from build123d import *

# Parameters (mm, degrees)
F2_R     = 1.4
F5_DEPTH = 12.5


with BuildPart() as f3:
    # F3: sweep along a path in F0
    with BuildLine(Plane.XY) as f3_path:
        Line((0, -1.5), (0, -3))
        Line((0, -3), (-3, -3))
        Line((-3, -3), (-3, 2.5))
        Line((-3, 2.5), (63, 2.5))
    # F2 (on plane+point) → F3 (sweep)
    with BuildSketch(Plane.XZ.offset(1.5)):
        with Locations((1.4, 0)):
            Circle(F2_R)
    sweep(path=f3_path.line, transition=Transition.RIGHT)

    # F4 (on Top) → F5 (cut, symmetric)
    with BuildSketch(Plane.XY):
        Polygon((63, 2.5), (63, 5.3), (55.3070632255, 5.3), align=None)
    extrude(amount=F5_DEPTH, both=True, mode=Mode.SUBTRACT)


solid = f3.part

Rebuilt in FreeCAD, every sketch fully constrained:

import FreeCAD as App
import Part
import Sketcher
Q = App.Units.Quantity


def add_polygon(sketch, points):
    """Adds a closed chain of lines whose ends are joined by coincident constraints."""
    first, n = sketch.GeometryCount, len(points)
    for a, b in zip(points, points[1:] + points[:1]):
        sketch.addGeometry(Part.LineSegment(App.Vector(*a, 0), App.Vector(*b, 0)), False)
    for i in range(n):
        sketch.addConstraint(Sketcher.Constraint("Coincident", first + i, 2, first + (i + 1) % n, 1))

doc = App.newDocument("Part")
body = doc.addObject("PartDesign::Body", "Body")

# Sketch on XZ plane
sketch1 = body.newObject("Sketcher::SketchObject", "Sketch")
sketch1.AttachmentSupport = (doc.getObject("XZ_Plane"), [""])
sketch1.MapMode = "FlatFace"
sketch1.AttachmentOffset = App.Placement(App.Vector(0, 0, 1.5), App.Rotation())
sketch1.addGeometry(Part.Circle(App.Vector(1.4, 0, 0), App.Vector(0, 0, 1), 1.4), False)
sketch1.addConstraint([
    Sketcher.Constraint("PointOnObject", 0, 3, -1),
    Sketcher.Constraint("Diameter", 0, Q("2.8 mm")),
    Sketcher.Constraint("DistanceX", -1, 1, 0, 3, Q("1.4 mm")),
])

# Sketch on XY plane
sketch2 = body.newObject("Sketcher::SketchObject", "Sketch001")
sketch2.AttachmentSupport = (doc.getObject("XY_Plane"), [""])
sketch2.MapMode = "FlatFace"
sketch2.addGeometry([
    Part.LineSegment(App.Vector(0, -1.5, 0), App.Vector(0, -3, 0)),
    Part.LineSegment(App.Vector(0, -3, 0), App.Vector(-3, -3, 0)),
    Part.LineSegment(App.Vector(-3, -3, 0), App.Vector(-3, 2.5, 0)),
    Part.LineSegment(App.Vector(-3, 2.5, 0), App.Vector(63, 2.5, 0)),
], False)
sketch2.addConstraint([
    Sketcher.Constraint("Coincident", 0, 2, 1, 1),
    Sketcher.Constraint("Coincident", 1, 2, 2, 1),
    Sketcher.Constraint("Coincident", 2, 2, 3, 1),
    Sketcher.Constraint("Vertical", 0),
    Sketcher.Constraint("Horizontal", 1),
    Sketcher.Constraint("Vertical", 2),
    Sketcher.Constraint("Horizontal", 3),
    Sketcher.Constraint("PointOnObject", 0, 1, -2),
    Sketcher.Constraint("DistanceX", 1, 2, 1, 1, Q("3 mm")),
    Sketcher.Constraint("DistanceX", 3, 1, 3, 2, Q("66 mm")),
    Sketcher.Constraint("DistanceY", 0, 2, 0, 1, Q("1.5 mm")),
    Sketcher.Constraint("DistanceY", 2, 1, 2, 2, Q("5.5 mm")),
    Sketcher.Constraint("DistanceY", 0, 2, -1, 1, Q("3 mm")),
])
doc.recompute()

additivepipe = body.newObject("PartDesign::AdditivePipe", "AdditivePipe")
additivepipe.Profile = sketch1
additivepipe.Spine = (sketch2, ["Edge1", "Edge2", "Edge3", "Edge4"])
additivepipe.Transition = "Right corner"

# Sketch on XY plane
sketch3 = body.newObject("Sketcher::SketchObject", "Sketch002")
sketch3.AttachmentSupport = (doc.getObject("XY_Plane"), [""])
sketch3.MapMode = "FlatFace"
add_polygon(sketch3, [(63, 2.5), (63, 5.3), (55.307063, 5.3)])  # lines 0-2
sketch3.addConstraint([
    Sketcher.Constraint("Vertical", 0),
    Sketcher.Constraint("Horizontal", 1),
    Sketcher.Constraint("Angle", 2, Q("-20 deg")),
    Sketcher.Constraint("DistanceY", 0, 1, 0, 2, Q("2.8 mm")),
    Sketcher.Constraint("DistanceX", -1, 1, 0, 2, Q("63 mm")),
    Sketcher.Constraint("DistanceY", -1, 1, 0, 2, Q("5.3 mm")),
])
pocket1 = body.newObject("PartDesign::Pocket", "Pocket")
pocket1.Profile = sketch3
pocket1.Length = 25
pocket1.Midplane = True

doc.recompute()
